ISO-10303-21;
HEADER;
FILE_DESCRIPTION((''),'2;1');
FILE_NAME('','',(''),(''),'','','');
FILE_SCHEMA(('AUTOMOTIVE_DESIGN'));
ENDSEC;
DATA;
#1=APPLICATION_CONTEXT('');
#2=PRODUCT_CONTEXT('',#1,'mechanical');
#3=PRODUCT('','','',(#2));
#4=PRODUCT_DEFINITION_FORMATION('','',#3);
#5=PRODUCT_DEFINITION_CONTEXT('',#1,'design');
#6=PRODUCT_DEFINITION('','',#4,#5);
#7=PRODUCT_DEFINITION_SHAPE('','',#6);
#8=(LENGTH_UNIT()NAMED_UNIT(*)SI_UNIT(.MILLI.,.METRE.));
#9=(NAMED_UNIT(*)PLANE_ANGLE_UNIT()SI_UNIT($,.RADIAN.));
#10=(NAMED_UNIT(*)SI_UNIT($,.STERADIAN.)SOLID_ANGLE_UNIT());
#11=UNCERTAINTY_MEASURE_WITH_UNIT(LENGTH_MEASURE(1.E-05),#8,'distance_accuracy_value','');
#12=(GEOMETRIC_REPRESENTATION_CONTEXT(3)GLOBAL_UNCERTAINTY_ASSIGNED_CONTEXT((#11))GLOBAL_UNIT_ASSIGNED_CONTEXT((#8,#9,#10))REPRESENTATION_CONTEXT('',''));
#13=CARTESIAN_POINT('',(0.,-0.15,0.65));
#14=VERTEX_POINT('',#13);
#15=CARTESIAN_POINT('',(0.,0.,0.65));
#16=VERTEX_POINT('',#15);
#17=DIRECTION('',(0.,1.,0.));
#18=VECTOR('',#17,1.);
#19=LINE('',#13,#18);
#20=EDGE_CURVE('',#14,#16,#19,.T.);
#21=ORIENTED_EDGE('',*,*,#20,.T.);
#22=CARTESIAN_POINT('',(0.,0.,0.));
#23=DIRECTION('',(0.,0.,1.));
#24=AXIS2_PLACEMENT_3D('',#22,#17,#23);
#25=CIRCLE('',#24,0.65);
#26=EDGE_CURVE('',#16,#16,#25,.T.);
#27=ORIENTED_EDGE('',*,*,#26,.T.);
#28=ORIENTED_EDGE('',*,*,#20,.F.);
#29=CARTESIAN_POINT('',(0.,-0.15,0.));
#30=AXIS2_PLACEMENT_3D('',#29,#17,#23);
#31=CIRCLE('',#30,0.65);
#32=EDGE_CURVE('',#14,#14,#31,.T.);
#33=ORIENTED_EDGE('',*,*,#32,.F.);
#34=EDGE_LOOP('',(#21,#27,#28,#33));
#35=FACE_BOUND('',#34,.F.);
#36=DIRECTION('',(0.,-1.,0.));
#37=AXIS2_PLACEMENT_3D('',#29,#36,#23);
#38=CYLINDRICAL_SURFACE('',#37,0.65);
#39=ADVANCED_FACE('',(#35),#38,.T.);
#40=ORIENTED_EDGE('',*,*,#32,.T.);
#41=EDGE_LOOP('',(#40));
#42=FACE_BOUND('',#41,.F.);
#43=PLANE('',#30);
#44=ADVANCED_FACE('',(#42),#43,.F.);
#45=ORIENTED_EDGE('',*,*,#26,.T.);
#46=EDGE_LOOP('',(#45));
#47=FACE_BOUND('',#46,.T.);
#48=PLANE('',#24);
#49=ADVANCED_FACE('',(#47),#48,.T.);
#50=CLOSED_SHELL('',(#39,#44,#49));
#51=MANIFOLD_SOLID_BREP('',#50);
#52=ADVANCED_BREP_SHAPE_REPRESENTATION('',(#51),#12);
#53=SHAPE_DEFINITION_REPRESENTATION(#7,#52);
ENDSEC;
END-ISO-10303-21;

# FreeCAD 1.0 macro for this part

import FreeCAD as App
import Part
import Sketcher

doc = App.newDocument("Part")
body = doc.addObject("PartDesign::Body", "Body")

# Sketch on XZ plane
sketch1 = body.newObject("Sketcher::SketchObject", "Sketch")
sketch1.AttachmentSupport = (doc.getObject("XZ_Plane"), [""])
sketch1.MapMode = "FlatFace"
sketch1.AttachmentOffset = App.Placement(App.Vector(0, 0, 0.15), App.Rotation())
sketch1.addGeometry(Part.Circle(App.Vector(0, 0, 0), App.Vector(0, 0, 1), 0.7), False)
sketch1.addConstraint([
    Sketcher.Constraint("Coincident", 0, 3, -1, 1),
    Sketcher.Constraint("Diameter", 0, 1.3),
])
pad1 = body.newObject("PartDesign::Pad", "Pad")
pad1.Profile = sketch1
pad1.Length = 0.15
pad1.Reversed = True

doc.recompute()
